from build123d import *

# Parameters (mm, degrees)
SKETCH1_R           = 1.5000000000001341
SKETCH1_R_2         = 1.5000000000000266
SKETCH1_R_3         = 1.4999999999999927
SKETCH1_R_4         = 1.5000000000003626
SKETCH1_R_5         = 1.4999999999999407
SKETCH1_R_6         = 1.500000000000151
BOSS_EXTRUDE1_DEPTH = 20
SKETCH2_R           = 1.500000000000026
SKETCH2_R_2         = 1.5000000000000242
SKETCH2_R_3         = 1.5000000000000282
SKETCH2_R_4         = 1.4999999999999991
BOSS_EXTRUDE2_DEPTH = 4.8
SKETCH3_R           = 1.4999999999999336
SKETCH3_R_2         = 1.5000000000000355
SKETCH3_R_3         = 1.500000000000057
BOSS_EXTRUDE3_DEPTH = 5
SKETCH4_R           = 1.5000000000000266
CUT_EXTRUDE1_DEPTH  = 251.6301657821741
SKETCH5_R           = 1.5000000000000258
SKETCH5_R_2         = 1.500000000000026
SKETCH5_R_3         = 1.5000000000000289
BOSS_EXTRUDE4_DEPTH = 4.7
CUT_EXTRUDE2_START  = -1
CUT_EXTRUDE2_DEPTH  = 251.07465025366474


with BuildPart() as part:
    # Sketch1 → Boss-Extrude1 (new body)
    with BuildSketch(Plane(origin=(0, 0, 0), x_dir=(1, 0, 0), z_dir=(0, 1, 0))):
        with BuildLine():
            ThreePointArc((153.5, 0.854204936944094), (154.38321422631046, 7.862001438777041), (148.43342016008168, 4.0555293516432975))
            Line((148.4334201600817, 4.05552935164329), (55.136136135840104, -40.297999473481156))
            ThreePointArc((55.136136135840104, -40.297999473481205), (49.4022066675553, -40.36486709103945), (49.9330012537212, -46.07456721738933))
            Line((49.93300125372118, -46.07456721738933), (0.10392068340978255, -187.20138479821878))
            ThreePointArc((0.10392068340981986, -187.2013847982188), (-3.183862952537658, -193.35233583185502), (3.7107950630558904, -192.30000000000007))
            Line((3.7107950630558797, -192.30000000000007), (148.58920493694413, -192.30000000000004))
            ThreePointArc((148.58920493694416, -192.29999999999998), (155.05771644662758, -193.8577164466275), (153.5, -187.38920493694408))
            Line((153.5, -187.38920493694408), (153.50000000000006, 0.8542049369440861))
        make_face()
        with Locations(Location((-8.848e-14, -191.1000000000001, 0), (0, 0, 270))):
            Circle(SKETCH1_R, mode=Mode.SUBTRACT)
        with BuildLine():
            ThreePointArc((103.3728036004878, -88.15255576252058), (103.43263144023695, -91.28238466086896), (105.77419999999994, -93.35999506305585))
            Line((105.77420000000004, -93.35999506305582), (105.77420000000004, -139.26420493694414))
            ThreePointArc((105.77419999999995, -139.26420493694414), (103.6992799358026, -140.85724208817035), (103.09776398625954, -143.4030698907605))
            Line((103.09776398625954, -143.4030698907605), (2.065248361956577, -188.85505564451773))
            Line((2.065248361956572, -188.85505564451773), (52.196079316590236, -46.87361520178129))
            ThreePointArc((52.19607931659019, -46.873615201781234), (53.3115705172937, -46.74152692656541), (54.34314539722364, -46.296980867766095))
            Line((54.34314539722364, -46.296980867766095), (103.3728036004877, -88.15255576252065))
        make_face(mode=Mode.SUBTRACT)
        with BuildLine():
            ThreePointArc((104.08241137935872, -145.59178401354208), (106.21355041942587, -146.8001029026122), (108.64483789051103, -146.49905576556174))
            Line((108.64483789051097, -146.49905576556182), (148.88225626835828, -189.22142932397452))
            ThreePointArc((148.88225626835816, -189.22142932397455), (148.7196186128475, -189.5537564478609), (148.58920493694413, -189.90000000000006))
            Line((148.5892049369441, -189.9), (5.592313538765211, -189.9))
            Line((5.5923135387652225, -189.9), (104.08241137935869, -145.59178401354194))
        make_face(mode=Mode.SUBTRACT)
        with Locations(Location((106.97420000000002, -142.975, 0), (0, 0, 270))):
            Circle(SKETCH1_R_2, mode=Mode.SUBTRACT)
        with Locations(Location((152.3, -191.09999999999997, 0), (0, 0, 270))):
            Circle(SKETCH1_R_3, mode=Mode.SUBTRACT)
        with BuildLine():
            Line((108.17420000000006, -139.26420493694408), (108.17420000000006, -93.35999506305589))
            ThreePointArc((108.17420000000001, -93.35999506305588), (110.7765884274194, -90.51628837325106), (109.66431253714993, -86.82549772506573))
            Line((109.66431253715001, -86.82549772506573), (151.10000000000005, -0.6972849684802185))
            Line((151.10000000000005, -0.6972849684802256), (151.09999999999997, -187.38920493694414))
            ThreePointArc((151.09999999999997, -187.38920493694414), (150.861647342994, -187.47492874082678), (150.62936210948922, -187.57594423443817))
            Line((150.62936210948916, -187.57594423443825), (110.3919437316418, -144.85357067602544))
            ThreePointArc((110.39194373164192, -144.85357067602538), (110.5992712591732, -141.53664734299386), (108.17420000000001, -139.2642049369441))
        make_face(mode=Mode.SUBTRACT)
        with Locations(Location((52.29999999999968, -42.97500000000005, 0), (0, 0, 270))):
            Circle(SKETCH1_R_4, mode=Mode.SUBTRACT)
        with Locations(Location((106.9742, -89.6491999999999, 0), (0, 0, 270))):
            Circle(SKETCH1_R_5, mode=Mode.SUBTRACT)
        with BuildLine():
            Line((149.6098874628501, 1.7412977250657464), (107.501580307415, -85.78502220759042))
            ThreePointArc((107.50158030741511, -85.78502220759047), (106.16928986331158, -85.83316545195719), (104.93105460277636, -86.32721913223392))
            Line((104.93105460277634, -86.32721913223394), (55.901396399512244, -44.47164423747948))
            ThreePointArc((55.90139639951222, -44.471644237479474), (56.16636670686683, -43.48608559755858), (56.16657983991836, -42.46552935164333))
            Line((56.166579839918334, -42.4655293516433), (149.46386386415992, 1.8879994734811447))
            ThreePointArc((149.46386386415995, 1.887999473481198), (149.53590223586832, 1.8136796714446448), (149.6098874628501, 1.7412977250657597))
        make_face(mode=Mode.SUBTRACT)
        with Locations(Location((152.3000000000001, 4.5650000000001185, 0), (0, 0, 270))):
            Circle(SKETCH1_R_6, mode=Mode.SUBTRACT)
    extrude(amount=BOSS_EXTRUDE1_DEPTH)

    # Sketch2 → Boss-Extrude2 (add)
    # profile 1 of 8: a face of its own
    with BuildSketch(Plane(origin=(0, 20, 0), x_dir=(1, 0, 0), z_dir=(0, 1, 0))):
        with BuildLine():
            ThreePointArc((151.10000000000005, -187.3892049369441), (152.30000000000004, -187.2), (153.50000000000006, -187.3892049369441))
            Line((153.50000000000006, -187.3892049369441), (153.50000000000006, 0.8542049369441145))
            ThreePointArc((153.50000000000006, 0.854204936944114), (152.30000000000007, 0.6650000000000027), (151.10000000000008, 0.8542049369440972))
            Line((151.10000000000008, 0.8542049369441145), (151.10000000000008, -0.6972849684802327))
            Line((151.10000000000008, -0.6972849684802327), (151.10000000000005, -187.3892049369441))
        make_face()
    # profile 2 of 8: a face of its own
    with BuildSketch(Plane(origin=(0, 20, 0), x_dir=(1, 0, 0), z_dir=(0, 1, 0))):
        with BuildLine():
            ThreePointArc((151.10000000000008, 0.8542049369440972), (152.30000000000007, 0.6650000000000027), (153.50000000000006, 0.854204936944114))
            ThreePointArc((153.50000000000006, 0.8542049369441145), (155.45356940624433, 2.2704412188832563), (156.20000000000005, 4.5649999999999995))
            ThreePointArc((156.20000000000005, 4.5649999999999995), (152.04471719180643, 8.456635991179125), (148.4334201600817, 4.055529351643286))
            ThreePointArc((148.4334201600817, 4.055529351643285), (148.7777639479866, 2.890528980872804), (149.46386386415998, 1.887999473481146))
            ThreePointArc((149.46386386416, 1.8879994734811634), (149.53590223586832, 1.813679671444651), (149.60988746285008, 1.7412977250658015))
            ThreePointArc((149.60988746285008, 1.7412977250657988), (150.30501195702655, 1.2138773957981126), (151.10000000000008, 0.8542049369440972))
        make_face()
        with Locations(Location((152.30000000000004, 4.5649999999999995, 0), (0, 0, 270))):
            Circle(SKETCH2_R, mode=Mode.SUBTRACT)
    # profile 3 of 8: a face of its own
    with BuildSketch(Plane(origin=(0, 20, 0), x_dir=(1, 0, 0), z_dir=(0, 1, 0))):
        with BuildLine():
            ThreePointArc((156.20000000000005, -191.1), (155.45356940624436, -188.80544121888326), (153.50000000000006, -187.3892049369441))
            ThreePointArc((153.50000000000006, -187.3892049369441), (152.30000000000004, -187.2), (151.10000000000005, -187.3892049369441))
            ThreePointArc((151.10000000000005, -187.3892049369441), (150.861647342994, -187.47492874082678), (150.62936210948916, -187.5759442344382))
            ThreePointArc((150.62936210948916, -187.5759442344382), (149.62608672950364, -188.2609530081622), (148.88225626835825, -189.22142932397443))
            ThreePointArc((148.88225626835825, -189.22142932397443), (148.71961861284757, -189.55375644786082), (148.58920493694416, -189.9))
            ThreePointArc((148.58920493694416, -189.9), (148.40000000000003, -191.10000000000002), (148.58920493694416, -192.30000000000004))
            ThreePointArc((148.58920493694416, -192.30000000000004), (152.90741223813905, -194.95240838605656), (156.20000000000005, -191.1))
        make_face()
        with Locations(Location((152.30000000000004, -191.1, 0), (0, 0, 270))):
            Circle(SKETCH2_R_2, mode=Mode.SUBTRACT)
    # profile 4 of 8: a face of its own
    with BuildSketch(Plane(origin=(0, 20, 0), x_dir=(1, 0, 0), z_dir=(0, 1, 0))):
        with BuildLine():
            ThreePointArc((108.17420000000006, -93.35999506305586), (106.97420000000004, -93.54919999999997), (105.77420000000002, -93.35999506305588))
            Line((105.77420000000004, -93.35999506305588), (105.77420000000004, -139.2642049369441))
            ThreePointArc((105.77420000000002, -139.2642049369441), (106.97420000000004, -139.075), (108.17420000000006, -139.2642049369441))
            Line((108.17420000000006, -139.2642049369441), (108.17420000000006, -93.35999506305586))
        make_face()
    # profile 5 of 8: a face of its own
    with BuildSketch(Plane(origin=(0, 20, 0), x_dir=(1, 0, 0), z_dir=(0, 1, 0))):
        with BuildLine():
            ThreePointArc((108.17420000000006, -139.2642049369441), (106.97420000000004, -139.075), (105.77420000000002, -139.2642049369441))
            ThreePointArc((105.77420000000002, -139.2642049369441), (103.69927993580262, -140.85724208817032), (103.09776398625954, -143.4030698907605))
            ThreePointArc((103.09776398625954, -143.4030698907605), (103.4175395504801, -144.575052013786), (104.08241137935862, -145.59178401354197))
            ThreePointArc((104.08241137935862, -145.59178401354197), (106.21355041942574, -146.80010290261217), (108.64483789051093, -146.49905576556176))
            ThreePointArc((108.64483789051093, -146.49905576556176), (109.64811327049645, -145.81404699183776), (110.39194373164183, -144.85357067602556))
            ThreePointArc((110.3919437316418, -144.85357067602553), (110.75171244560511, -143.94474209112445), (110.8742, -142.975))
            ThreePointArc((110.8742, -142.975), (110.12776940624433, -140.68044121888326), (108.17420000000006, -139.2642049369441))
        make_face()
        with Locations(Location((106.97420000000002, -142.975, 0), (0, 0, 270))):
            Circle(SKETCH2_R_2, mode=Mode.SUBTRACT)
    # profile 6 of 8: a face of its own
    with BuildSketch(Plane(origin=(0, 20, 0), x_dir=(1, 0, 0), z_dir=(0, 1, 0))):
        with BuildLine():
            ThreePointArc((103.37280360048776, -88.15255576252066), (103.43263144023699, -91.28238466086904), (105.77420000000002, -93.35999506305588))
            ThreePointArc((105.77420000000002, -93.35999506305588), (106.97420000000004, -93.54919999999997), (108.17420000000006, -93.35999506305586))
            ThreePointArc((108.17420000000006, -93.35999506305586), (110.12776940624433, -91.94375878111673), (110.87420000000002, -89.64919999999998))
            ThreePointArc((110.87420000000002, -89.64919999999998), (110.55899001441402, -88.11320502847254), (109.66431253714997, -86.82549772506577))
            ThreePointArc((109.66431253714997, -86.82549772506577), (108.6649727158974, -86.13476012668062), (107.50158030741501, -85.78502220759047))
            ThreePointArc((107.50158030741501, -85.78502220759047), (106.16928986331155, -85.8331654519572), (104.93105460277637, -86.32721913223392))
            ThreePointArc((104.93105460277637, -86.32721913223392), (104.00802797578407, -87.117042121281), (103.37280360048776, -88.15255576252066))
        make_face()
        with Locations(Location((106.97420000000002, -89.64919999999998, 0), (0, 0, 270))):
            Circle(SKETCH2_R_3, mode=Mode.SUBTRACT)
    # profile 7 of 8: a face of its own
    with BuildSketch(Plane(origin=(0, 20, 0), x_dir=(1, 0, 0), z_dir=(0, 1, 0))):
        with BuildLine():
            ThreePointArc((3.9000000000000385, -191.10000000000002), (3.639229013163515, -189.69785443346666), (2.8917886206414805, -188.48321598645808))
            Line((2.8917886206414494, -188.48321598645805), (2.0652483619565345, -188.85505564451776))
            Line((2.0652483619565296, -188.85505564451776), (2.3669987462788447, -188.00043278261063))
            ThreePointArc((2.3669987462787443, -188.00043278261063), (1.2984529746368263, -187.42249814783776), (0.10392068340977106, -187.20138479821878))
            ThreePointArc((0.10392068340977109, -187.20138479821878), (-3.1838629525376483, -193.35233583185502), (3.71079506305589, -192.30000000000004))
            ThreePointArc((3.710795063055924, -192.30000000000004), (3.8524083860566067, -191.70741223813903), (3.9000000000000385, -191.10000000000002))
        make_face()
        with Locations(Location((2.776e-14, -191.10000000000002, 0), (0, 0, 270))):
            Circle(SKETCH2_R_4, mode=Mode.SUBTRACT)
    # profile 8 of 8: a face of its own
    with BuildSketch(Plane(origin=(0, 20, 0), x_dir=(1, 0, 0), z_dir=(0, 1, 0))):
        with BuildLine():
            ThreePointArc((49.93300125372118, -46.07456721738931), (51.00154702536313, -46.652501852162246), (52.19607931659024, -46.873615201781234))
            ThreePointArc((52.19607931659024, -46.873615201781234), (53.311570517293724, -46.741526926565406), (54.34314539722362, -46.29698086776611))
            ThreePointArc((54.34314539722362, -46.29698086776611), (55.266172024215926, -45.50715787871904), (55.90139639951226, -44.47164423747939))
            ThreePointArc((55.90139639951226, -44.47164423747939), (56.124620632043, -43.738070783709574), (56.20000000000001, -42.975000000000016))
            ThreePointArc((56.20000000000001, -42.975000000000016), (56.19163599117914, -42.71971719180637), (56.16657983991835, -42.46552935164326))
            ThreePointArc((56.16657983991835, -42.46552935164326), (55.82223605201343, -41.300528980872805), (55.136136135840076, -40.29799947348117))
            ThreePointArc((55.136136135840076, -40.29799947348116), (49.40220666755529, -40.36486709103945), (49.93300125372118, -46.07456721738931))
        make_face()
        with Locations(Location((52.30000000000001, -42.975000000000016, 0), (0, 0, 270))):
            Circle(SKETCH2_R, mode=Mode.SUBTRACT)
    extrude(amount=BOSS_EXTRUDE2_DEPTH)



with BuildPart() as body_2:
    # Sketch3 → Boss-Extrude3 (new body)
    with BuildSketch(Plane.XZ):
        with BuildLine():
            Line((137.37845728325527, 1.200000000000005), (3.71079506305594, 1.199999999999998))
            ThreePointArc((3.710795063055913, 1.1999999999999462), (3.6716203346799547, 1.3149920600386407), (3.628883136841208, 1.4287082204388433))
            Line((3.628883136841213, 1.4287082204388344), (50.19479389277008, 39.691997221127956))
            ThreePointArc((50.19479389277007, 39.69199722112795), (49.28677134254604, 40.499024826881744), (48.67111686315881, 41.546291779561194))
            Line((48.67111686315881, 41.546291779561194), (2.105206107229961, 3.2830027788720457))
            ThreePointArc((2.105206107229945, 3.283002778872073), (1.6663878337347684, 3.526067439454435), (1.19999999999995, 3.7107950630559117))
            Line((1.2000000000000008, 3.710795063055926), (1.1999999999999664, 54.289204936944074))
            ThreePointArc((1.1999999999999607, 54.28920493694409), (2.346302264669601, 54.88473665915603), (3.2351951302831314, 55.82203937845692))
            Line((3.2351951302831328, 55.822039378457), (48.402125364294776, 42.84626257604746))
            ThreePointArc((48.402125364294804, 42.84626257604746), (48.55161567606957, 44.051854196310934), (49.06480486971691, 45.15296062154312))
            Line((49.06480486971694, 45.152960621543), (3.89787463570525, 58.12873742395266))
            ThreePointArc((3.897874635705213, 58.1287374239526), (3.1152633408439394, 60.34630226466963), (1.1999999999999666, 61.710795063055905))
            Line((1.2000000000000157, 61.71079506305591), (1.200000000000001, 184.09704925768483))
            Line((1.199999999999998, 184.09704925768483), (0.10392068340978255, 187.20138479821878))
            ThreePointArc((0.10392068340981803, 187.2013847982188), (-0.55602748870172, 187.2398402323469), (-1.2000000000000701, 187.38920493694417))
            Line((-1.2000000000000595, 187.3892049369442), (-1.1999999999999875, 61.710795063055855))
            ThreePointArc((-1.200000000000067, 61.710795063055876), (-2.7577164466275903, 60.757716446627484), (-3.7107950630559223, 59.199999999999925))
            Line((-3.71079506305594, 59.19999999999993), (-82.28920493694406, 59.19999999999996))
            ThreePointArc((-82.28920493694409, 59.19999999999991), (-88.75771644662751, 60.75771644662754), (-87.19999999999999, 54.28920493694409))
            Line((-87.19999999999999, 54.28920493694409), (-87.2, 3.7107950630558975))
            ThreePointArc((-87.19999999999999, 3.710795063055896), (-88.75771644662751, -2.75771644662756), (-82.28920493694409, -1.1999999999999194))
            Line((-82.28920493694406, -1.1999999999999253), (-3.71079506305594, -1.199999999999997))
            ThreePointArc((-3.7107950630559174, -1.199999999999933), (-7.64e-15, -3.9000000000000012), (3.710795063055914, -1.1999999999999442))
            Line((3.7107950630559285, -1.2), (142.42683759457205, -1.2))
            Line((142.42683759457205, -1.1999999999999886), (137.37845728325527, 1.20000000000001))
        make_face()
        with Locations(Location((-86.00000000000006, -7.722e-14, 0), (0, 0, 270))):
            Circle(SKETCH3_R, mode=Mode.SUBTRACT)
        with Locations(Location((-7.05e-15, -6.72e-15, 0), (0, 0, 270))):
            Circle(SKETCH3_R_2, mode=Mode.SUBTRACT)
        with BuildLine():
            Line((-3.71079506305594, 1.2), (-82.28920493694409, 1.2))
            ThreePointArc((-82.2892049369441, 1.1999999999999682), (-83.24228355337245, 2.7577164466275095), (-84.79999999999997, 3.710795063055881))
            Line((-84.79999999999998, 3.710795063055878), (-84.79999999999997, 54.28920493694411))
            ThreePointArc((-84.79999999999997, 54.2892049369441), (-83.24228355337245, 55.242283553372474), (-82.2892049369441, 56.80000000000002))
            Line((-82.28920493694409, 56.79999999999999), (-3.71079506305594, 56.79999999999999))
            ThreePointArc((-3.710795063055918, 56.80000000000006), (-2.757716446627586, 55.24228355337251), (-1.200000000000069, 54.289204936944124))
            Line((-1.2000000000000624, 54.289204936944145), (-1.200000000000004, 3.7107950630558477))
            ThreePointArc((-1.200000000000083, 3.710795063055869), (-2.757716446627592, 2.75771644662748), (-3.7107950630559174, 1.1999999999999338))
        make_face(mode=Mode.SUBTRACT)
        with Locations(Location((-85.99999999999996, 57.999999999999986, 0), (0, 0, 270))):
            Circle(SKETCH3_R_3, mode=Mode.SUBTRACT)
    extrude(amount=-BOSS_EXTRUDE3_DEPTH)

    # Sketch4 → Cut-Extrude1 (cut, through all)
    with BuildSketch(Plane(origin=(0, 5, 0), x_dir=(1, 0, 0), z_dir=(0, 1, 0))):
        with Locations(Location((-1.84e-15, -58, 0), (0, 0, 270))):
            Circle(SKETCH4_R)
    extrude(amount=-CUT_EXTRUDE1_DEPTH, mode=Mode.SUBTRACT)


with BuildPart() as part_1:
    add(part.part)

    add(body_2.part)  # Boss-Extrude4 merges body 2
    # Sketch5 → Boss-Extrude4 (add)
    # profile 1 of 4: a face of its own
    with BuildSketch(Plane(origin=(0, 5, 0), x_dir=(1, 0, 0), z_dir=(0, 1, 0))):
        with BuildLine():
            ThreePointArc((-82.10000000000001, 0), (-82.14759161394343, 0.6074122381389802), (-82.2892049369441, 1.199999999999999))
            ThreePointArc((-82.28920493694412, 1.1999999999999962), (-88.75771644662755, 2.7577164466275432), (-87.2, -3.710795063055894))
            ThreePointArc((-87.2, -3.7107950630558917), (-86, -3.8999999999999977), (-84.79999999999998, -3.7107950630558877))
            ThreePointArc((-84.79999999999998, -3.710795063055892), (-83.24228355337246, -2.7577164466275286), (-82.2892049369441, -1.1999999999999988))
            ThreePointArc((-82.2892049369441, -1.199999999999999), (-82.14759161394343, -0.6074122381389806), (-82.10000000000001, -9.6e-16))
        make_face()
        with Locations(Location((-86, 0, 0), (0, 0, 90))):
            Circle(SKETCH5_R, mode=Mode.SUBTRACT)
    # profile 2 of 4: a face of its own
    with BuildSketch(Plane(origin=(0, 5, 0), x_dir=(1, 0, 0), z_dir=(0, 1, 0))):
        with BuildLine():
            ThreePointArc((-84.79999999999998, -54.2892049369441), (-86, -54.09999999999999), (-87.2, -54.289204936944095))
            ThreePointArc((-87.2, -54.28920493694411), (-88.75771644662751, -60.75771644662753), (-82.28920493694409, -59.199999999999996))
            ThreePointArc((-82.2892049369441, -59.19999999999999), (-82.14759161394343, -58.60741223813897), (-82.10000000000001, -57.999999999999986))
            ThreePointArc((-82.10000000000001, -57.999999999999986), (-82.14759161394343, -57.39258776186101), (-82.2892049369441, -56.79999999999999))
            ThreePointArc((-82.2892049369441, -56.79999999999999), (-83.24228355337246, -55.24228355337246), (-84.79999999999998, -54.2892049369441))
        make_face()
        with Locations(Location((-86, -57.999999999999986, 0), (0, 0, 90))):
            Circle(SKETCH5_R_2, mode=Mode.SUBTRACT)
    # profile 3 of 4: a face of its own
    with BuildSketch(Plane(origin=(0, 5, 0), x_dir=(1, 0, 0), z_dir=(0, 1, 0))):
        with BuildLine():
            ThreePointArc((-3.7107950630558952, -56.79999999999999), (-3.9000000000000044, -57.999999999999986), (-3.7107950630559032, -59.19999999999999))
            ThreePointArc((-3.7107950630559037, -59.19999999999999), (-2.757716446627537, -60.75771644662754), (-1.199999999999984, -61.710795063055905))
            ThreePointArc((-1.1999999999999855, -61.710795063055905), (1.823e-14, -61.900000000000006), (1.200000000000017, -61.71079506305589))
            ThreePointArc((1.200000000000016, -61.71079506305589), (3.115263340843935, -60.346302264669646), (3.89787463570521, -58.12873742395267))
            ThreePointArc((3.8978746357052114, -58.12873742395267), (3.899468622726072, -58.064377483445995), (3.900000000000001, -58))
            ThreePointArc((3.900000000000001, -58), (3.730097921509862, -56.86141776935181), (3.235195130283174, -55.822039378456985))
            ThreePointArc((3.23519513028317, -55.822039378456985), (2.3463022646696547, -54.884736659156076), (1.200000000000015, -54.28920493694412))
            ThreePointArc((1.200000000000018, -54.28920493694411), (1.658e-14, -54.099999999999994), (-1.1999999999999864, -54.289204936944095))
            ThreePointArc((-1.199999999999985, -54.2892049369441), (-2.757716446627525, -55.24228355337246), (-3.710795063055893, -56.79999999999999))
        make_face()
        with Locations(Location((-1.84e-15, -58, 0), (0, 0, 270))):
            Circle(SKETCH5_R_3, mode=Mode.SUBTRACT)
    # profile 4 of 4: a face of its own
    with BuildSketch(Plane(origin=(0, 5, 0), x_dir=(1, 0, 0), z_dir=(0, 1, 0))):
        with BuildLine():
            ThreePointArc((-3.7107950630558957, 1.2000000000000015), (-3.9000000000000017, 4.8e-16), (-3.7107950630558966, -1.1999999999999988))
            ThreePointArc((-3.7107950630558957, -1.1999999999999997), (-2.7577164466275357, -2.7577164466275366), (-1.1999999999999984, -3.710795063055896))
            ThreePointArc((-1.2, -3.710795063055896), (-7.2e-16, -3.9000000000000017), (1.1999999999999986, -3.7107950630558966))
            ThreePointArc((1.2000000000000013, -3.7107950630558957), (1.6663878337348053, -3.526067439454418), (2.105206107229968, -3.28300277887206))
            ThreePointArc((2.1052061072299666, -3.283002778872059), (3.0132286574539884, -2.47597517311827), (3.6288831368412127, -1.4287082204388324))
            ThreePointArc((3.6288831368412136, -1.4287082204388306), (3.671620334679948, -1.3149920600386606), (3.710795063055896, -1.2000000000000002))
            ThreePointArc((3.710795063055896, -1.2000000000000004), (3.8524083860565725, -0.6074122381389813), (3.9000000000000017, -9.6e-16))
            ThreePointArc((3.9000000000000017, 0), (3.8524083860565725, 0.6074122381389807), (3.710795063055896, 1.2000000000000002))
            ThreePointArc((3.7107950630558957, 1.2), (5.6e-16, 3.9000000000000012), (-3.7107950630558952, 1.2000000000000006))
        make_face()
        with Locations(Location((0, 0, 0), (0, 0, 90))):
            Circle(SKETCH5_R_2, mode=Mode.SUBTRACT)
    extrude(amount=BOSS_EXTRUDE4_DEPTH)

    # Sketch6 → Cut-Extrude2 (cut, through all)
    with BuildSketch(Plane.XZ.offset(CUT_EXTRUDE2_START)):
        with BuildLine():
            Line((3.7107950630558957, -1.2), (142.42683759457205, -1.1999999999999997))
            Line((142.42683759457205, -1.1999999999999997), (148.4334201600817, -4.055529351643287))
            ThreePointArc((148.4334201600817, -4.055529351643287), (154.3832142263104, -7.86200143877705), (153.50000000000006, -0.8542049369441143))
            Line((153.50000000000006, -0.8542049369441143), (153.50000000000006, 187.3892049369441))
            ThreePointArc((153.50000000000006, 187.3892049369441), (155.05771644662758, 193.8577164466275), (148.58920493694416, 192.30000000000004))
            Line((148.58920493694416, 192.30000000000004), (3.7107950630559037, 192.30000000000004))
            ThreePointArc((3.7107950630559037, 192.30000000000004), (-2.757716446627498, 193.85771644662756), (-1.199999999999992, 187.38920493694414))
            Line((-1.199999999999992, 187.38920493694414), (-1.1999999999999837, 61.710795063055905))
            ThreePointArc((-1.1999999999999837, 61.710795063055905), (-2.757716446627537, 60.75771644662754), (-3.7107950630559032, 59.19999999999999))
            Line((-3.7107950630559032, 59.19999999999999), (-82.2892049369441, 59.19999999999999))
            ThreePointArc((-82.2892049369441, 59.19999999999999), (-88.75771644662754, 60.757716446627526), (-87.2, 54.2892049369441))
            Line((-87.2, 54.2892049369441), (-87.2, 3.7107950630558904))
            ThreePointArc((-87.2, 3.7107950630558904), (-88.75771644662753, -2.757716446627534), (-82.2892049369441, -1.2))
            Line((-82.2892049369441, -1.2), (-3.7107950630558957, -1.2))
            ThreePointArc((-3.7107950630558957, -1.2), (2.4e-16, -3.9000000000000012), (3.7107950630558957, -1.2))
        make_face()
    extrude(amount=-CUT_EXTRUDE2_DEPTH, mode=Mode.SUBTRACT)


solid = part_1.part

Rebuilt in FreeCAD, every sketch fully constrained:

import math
import FreeCAD as App
import Part
import Sketcher

V = App.Vector
Q = App.Units.Quantity

doc = App.newDocument("Part")
params = doc.addObject("Spreadsheet::Sheet", "Params")
for row, (alias, value) in enumerate([
    ("sketch1_diameter", "3 mm"),
    ("sketch1_radius", "3.9 mm"),
    ("sketch1_width", "1.2 mm"),
    ("pad1_length", "20 mm"),
    ("sketch2_diameter", "3 mm"),
    ("sketch2_diameter2", "7.8 mm"),
    ("pad2_length", "4.8 mm"),
    ("sketch3_diameter", "3 mm"),
    ("sketch3_radius", "3.9 mm"),
    ("pad3_length", "5 mm"),
    ("sketch4_diameter", "3 mm"),
    ("sketch5_diameter", "3 mm"),
    ("sketch5_diameter2", "7.8 mm"),
    ("pad4_length", "4.7 mm"),
    ("sketch6_radius", "3.9 mm"),
], start=1):
    params.set(f"A{row}", alias)
    params.set(f"B{row}", "=" + value)
    params.setAlias(f"B{row}", alias)

body = doc.addObject("PartDesign::Body", "Body")

# Sketch on XZ plane
sketch1 = body.newObject("Sketcher::SketchObject", "Sketch")
sketch1.AttachmentSupport = (doc.getObject("XZ_Plane"), [""])
sketch1.MapMode = "FlatFace"
sketch1.addGeometry([
    Part.ArcOfCircle(Part.Circle(V(152.3, -4.57, 0), V(0, 0, 1), 3.9), math.radians(172), math.radians(432)),  # 0
    Part.LineSegment(V(148.43, -4.06, 0), V(55.14, 40.3, 0)),  # 1
    Part.ArcOfCircle(Part.Circle(V(52.3, 42.98, 0), V(0, 0, 1), 3.9), math.radians(127), math.radians(317)),  # 2
    Part.LineSegment(V(49.93, 46.07, 0), V(0.1, 187.2, 0)),  # 3
    Part.ArcOfCircle(Part.Circle(V(0, 191.1, 0), V(0, 0, 1), 3.9), math.radians(18), math.radians(272)),  # 4
    Part.LineSegment(V(3.71, 192.3, 0), V(148.59, 192.3, 0)),  # 5
    Part.ArcOfCircle(Part.Circle(V(152.3, 191.1, 0), V(0, 0, 1), 3.9), math.radians(-72), math.radians(162)),  # 6
    Part.LineSegment(V(153.5, 187.39, 0), V(153.5, -0.85, 0)),  # 7
    Part.Circle(V(0, 191.1, 0), V(0, 0, 1), 1.5),  # 8
    Part.LineSegment(V(54.34, 46.3, 0), V(103.37, 88.15, 0)),  # 9
    Part.ArcOfCircle(Part.Circle(V(106.97, 89.65, 0), V(0, 0, 1), 3.9), math.radians(108), math.radians(203)),  # 10
    Part.LineSegment(V(105.77, 93.36, 0), V(105.77, 139.26, 0)),  # 11
    Part.ArcOfCircle(Part.Circle(V(106.97, 142.97, 0), V(0, 0, 1), 3.9), math.radians(174), math.radians(252)),  # 12
    Part.LineSegment(V(103.1, 143.4, 0), V(2.07, 188.86, 0)),  # 13
    Part.LineSegment(V(2.07, 188.86, 0), V(52.2, 46.87, 0)),  # 14
    Part.ArcOfCircle(Part.Circle(V(52.3, 42.98, 0), V(0, 0, 1), 3.9), math.radians(58), math.radians(92)),  # 15
    Part.LineSegment(V(5.59, 189.9, 0), V(104.08, 145.59, 0)),  # 16
    Part.ArcOfCircle(Part.Circle(V(106.97, 142.97, 0), V(0, 0, 1), 3.9), math.radians(65), math.radians(138)),  # 17
    Part.LineSegment(V(108.64, 146.5, 0), V(148.88, 189.22, 0)),  # 18
    Part.ArcOfCircle(Part.Circle(V(152.3, 191.1, 0), V(0, 0, 1), 3.9), math.radians(-162.08), math.radians(-151.2)),  # 19
    Part.LineSegment(V(148.59, 189.9, 0), V(5.59, 189.9, 0)),  # 20
    Part.Circle(V(106.97, 142.97, 0), V(0, 0, 1), 1.5),  # 21
    Part.Circle(V(152.3, 191.1, 0), V(0, 0, 1), 1.5),  # 22
    Part.ArcOfCircle(Part.Circle(V(106.97, 142.97, 0), V(0, 0, 1), 3.9), math.radians(-72), math.radians(29)),  # 23
    Part.LineSegment(V(108.17, 139.26, 0), V(108.17, 93.36, 0)),  # 24
    Part.ArcOfCircle(Part.Circle(V(106.97, 89.65, 0), V(0, 0, 1), 3.9), math.radians(-46), math.radians(72)),  # 25
    Part.LineSegment(V(109.66, 86.83, 0), V(151.1, 0.7, 0)),  # 26
    Part.LineSegment(V(151.1, 0.7, 0), V(151.1, 187.39, 0)),  # 27
    Part.ArcOfCircle(Part.Circle(V(152.3, 191.1, 0), V(0, 0, 1), 3.9), math.radians(-115.36), math.radians(-107.92)),  # 28
    Part.LineSegment(V(150.63, 187.58, 0), V(110.39, 144.85, 0)),  # 29
    Part.Circle(V(52.3, 42.98, 0), V(0, 0, 1), 1.5),  # 30
    Part.Circle(V(106.97, 89.65, 0), V(0, 0, 1), 1.5),  # 31
    Part.ArcOfCircle(Part.Circle(V(152.3, -4.57, 0), V(0, 0, 1), 3.9), math.radians(133.61), math.radians(136.65)),  # 32
    Part.LineSegment(V(149.61, -1.74, 0), V(107.5, 85.79, 0)),  # 33
    Part.ArcOfCircle(Part.Circle(V(106.97, 89.65, 0), V(0, 0, 1), 3.9), math.radians(-122), math.radians(-82)),  # 34
    Part.LineSegment(V(104.93, 86.33, 0), V(55.9, 44.47, 0)),  # 35
    Part.ArcOfCircle(Part.Circle(V(52.3, 42.98, 0), V(0, 0, 1), 3.9), math.radians(-8), math.radians(23)),  # 36
    Part.LineSegment(V(56.17, 42.47, 0), V(149.46, -1.89, 0)),  # 37
    Part.Circle(V(152.3, -4.57, 0), V(0, 0, 1), 1.5),  # 38
], False)
sketch1.addConstraint([
    Sketcher.Constraint("Coincident", 0, 1, 1, 1),
    Sketcher.Constraint("Coincident", 1, 2, 2, 2),
    Sketcher.Constraint("Coincident", 2, 1, 3, 1),
    Sketcher.Constraint("Coincident", 3, 2, 4, 2),
    Sketcher.Constraint("Coincident", 4, 1, 5, 1),
    Sketcher.Constraint("Coincident", 5, 2, 6, 2),
    Sketcher.Constraint("Coincident", 6, 1, 7, 1),
    Sketcher.Constraint("Coincident", 7, 2, 0, 2),
    Sketcher.Constraint("Coincident", 9, 2, 10, 2),
    Sketcher.Constraint("Coincident", 10, 1, 11, 1),
    Sketcher.Constraint("Coincident", 11, 2, 12, 2),
    Sketcher.Constraint("Coincident", 12, 1, 13, 1),
    Sketcher.Constraint("Coincident", 13, 2, 14, 1),
    Sketcher.Constraint("Coincident", 14, 2, 15, 2),
    Sketcher.Constraint("Coincident", 15, 1, 9, 1),
    Sketcher.Constraint("Coincident", 16, 2, 17, 2),
    Sketcher.Constraint("Coincident", 17, 1, 18, 1),
    Sketcher.Constraint("Coincident", 18, 2, 19, 2),
    Sketcher.Constraint("Coincident", 19, 1, 20, 1),
    Sketcher.Constraint("Coincident", 20, 2, 16, 1),
    Sketcher.Constraint("Coincident", 23, 1, 24, 1),
    Sketcher.Constraint("Coincident", 24, 2, 25, 2),
    Sketcher.Constraint("Coincident", 25, 1, 26, 1),
    Sketcher.Constraint("Coincident", 26, 2, 27, 1),
    Sketcher.Constraint("Coincident", 27, 2, 28, 2),
    Sketcher.Constraint("Coincident", 28, 1, 29, 1),
    Sketcher.Constraint("Coincident", 29, 2, 23, 2),
    Sketcher.Constraint("Coincident", 32, 1, 33, 1),
    Sketcher.Constraint("Coincident", 33, 2, 34, 2),
    Sketcher.Constraint("Coincident", 34, 1, 35, 1),
    Sketcher.Constraint("Coincident", 35, 2, 36, 2),
    Sketcher.Constraint("Coincident", 36, 1, 37, 1),
    Sketcher.Constraint("Coincident", 37, 2, 32, 2),
    Sketcher.Constraint("Horizontal", 5),
    Sketcher.Constraint("Vertical", 7),
    Sketcher.Constraint("Vertical", 11),
    Sketcher.Constraint("Horizontal", 20),
    Sketcher.Constraint("Vertical", 24),
    Sketcher.Constraint("Vertical", 27),
    Sketcher.Constraint("Coincident", 8, 3, 4, 3),
    Sketcher.Constraint("Coincident", 15, 3, 2, 3),
    Sketcher.Constraint("Coincident", 17, 3, 12, 3),
    Sketcher.Constraint("Coincident", 19, 3, 6, 3),
    Sketcher.Constraint("Coincident", 21, 3, 12, 3),
    Sketcher.Constraint("Coincident", 22, 3, 6, 3),
    Sketcher.Constraint("Coincident", 23, 3, 12, 3),
    Sketcher.Constraint("Coincident", 25, 3, 10, 3),
    Sketcher.Constraint("Coincident", 28, 3, 6, 3),
    Sketcher.Constraint("Coincident", 30, 3, 2, 3),
    Sketcher.Constraint("Coincident", 31, 3, 10, 3),
    Sketcher.Constraint("Coincident", 32, 3, 0, 3),
    Sketcher.Constraint("Coincident", 34, 3, 10, 3),
    Sketcher.Constraint("Coincident", 36, 3, 2, 3),
    Sketcher.Constraint("Coincident", 38, 3, 0, 3),
    Sketcher.Constraint("Equal", 0, 2),
    Sketcher.Constraint("Equal", 2, 4),
    Sketcher.Constraint("Equal", 4, 6),
    Sketcher.Constraint("Equal", 6, 10),
    Sketcher.Constraint("Equal", 10, 12),
    Sketcher.Constraint("Equal", 12, 15),
    Sketcher.Constraint("Equal", 15, 17),
    Sketcher.Constraint("Equal", 17, 19),
    Sketcher.Constraint("Equal", 8, 21),
    Sketcher.Constraint("Equal", 21, 22),
    Sketcher.Constraint("Equal", 19, 23),
    Sketcher.Constraint("Equal", 23, 25),
    Sketcher.Constraint("Equal", 25, 28),
    Sketcher.Constraint("Equal", 22, 30),
    Sketcher.Constraint("Equal", 30, 31),
    Sketcher.Constraint("Equal", 28, 32),
    Sketcher.Constraint("Equal", 32, 34),
    Sketcher.Constraint("Equal", 34, 36),
    Sketcher.Constraint("Equal", 31, 38),
    Sketcher.Constraint("PointOnObject", 4, 3, -2),
    Sketcher.Constraint("Parallel", 3, 14),
    Sketcher.Constraint("Parallel", 13, 16),
    Sketcher.Constraint("Parallel", 18, 29),
    Sketcher.Constraint("Parallel", 26, 33),
    Sketcher.Constraint("Parallel", 9, 35),
    Sketcher.Constraint("Parallel", 1, 37),
    Sketcher.Constraint("Horizontal", 4, 3, 6, 3),
    Sketcher.Constraint("Horizontal", 11, 2, 23, 1),
    Sketcher.Constraint("Horizontal", 10, 1, 24, 2),
    Sketcher.Constraint("Horizontal", 6, 1, 27, 2),
    Sketcher.Constraint("Vertical", 0, 3, 6, 3),
    Sketcher.Constraint("Vertical", 5, 2, 19, 1),
    Sketcher.Constraint("Equal", 18, 29),
    Sketcher.Constraint("Equal", 9, 35),
    Sketcher.Constraint("Equal", 1, 37),
    Sketcher.Constraint("Diameter", 8, 3.0),
    Sketcher.Constraint("Radius", 0, 3.9),
    Sketcher.Constraint("DistanceX", 2, 3, 0, 3, 100.0),
    Sketcher.Constraint("DistanceY", 2, 3, 12, 3, 100.0),
    Sketcher.Constraint("DistanceX", -1, 1, 0, 3, 152.3),
    Sketcher.Constraint("DistanceY", -1, 1, 4, 3, 191.1),
    Sketcher.Constraint("DistanceY", -1, 1, 4, 1, 192.3),
    Sketcher.Constraint("DistanceX", -1, 1, 6, 1, 153.5),
    Sketcher.Constraint("DistanceX", 10, 1, 10, 3, 1.2),
    Sketcher.Constraint("DistanceY", 0, 3, 2, 3, 47.54),
    Sketcher.Constraint("DistanceY", 0, 3, -1, 1, 4.565),
    Sketcher.Constraint("DistanceY", -1, 1, 1, 2, 40.297999),
    Sketcher.Constraint("DistanceX", -1, 1, 2, 1, 49.933001),
    Sketcher.Constraint("DistanceX", 20, 2, 20, 1, 142.996891),
    Sketcher.Constraint("DistanceY", 11, 1, 11, 2, 45.90421),
    Sketcher.Constraint("DistanceY", 27, 1, 27, 2, 186.69192),
    Sketcher.Constraint("DistanceX", -1, 1, 10, 3, 106.9742),
    Sketcher.Constraint("DistanceY", 37, 2, 32, 1, 0.146702),
    Sketcher.Constraint("Distance", 18, 58.687742),
    Sketcher.Constraint("DistanceX", -1, 1, 0, 1, 148.43342),
    Sketcher.Constraint("DistanceX", -1, 1, 3, 2, 0.103921),
    Sketcher.Constraint("DistanceY", -1, 1, 12, 1, 143.40307),
    Sketcher.Constraint("DistanceX", -1, 1, 13, 2, 2.065248),
    Sketcher.Constraint("DistanceX", -1, 1, 14, 2, 52.196079),
    Sketcher.Constraint("DistanceY", -1, 1, 15, 1, 46.296981),
    Sketcher.Constraint("DistanceY", -1, 1, 18, 2, 189.221429),
    Sketcher.Constraint("DistanceX", -1, 1, 33, 2, 107.50158),
    Sketcher.Constraint("DistanceY", 9, 2, 10, 1, 5.207439),
])
sketch1.setExpression("Constraints[89]", "Params.sketch1_diameter")
sketch1.setExpression("Constraints[90]", "Params.sketch1_radius")
sketch1.setExpression("Constraints[97]", "Params.sketch1_width")
pad1 = body.newObject("PartDesign::Pad", "Pad")
pad1.Profile = sketch1
pad1.setExpression("Length", "Params.pad1_length")
pad1.Reversed = True

# Sketch on XZ plane
sketch2 = body.newObject("Sketcher::SketchObject", "Sketch001")
sketch2.AttachmentSupport = (doc.getObject("XZ_Plane"), [""])
sketch2.MapMode = "FlatFace"
sketch2.AttachmentOffset = App.Placement(V(0, 0, -20), App.Rotation())
sketch2.addGeometry([
    Part.LineSegment(V(153.5, 187.4, 0), V(153.5, -0.9, 0)),  # 0
    Part.ArcOfCircle(Part.Circle(V(152.3, -4.6, 0), V(0, 0, 1), 3.9), math.radians(108), math.radians(432)),  # 1
    Part.LineSegment(V(151.1, -0.9, 0), V(151.1, 187.4, 0)),  # 2
    Part.ArcOfCircle(Part.Circle(V(152.3, 191.1, 0), V(0, 0, 1), 3.9), math.radians(-72), math.radians(252)),  # 3
    Part.Circle(V(152.3, 191.1, 0), V(0, 0, 1), 1.5),  # 4
    Part.Circle(V(152.3, -4.6, 0), V(0, 0, 1), 1.5),  # 5
    Part.LineSegment(V(105.8, 93.4, 0), V(105.8, 139.3, 0)),  # 6
    Part.ArcOfCircle(Part.Circle(V(107, 143, 0), V(0, 0, 1), 3.9), math.radians(-72), math.radians(252)),  # 7
    Part.LineSegment(V(108.2, 139.3, 0), V(108.2, 93.4, 0)),  # 8
    Part.ArcOfCircle(Part.Circle(V(107, 89.6, 0), V(0, 0, 1), 3.9), math.radians(108), math.radians(432)),  # 9
    Part.Circle(V(107, 89.6, 0), V(0, 0, 1), 1.5),  # 10
    Part.Circle(V(107, 143, 0), V(0, 0, 1), 1.5),  # 11
    Part.LineSegment(V(2.9, 188.5, 0), V(2.1, 188.9, 0)),  # 12
    Part.LineSegment(V(2.1, 188.9, 0), V(2.4, 188, 0)),  # 13
    Part.ArcOfCircle(Part.Circle(V(0, 191.1, 0), V(0, 0, 1), 3.9), math.radians(-42), math.radians(307)),  # 14
    Part.Circle(V(0, 191.1, 0), V(0, 0, 1), 1.5),  # 15
    Part.Circle(V(52.3, 43, 0), V(0, 0, 1), 3.9),  # 16
    Part.Circle(V(52.3, 43, 0), V(0, 0, 1), 1.5),  # 17
], False)
sketch2.addConstraint([
    Sketcher.Constraint("Coincident", 0, 2, 1, 2),
    Sketcher.Constraint("Coincident", 1, 1, 2, 1),
    Sketcher.Constraint("Coincident", 2, 2, 3, 2),
    Sketcher.Constraint("Coincident", 3, 1, 0, 1),
    Sketcher.Constraint("Coincident", 6, 2, 7, 2),
    Sketcher.Constraint("Coincident", 7, 1, 8, 1),
    Sketcher.Constraint("Coincident", 8, 2, 9, 2),
    Sketcher.Constraint("Coincident", 9, 1, 6, 1),
    Sketcher.Constraint("Coincident", 12, 2, 13, 1),
    Sketcher.Constraint("Coincident", 13, 2, 14, 2),
    Sketcher.Constraint("Coincident", 14, 1, 12, 1),
    Sketcher.Constraint("Vertical", 0),
    Sketcher.Constraint("Vertical", 2),
    Sketcher.Constraint("Vertical", 6),
    Sketcher.Constraint("Vertical", 8),
    Sketcher.Constraint("Coincident", 4, 3, 3, 3),
    Sketcher.Constraint("Coincident", 5, 3, 1, 3),
    Sketcher.Constraint("Coincident", 10, 3, 9, 3),
    Sketcher.Constraint("Coincident", 11, 3, 7, 3),
    Sketcher.Constraint("Coincident", 15, 3, 14, 3),
    Sketcher.Constraint("Coincident", 17, 3, 16, 3),
    Sketcher.Constraint("Equal", 1, 3),
    Sketcher.Constraint("Equal", 4, 5),
    Sketcher.Constraint("Equal", 3, 7),
    Sketcher.Constraint("Equal", 7, 9),
    Sketcher.Constraint("Equal", 5, 10),
    Sketcher.Constraint("Equal", 10, 11),
    Sketcher.Constraint("Equal", 9, 14),
    Sketcher.Constraint("Equal", 11, 15),
    Sketcher.Constraint("Equal", 14, 16),
    Sketcher.Constraint("Equal", 15, 17),
    Sketcher.Constraint("PointOnObject", 14, 3, -2),
    Sketcher.Constraint("Horizontal", 4, 3, 14, 3),
    Sketcher.Constraint("Horizontal", 0, 2, 1, 1),
    Sketcher.Constraint("Horizontal", 2, 2, 3, 1),
    Sketcher.Constraint("Horizontal", 6, 2, 7, 1),
    Sketcher.Constraint("Horizontal", 8, 2, 9, 1),
    Sketcher.Constraint("Equal", 12, 13),
    Sketcher.Constraint("Diameter", 4, 3.0),
    Sketcher.Constraint("Diameter", 16, 7.8),
    Sketcher.Constraint("DistanceX", 16, 3, 1, 3, 100.0),
    Sketcher.Constraint("DistanceY", 16, 3, 7, 3, 100.0),
    Sketcher.Constraint("DistanceX", -1, 1, 1, 3, 152.3),
    Sketcher.Constraint("DistanceY", -1, 1, 3, 3, 191.1),
    Sketcher.Constraint("DistanceX", -1, 1, 0, 2, 153.5),
    Sketcher.Constraint("DistanceX", 6, 2, 7, 3, 1.2),
    Sketcher.Constraint("DistanceY", 1, 3, 7, 3, 147.54),
    Sketcher.Constraint("DistanceY", 1, 3, -1, 1, 4.565),
    Sketcher.Constraint("DistanceX", -1, 1, 13, 2, 2.366999),
    Sketcher.Constraint("DistanceY", 6, 1, 6, 2, 45.90421),
    Sketcher.Constraint("DistanceX", -1, 1, 7, 3, 106.9742),
    Sketcher.Constraint("Distance", 12, 0.90633),
    Sketcher.Constraint("DistanceX", -1, 1, 12, 2, 2.065248),
])
sketch2.setExpression("Constraints[38]", "Params.sketch2_diameter")
sketch2.setExpression("Constraints[39]", "Params.sketch2_diameter2")
pad2 = body.newObject("PartDesign::Pad", "Pad001")
pad2.Profile = sketch2
pad2.setExpression("Length", "Params.pad2_length")
pad2.Reversed = True
body2 = doc.addObject("PartDesign::Body", "Body001")

# Sketch on XZ plane
sketch3 = body2.newObject("Sketcher::SketchObject", "Sketch002")
sketch3.AttachmentSupport = (doc.getObject("XZ_Plane001"), [""])
sketch3.MapMode = "FlatFace"
sketch3.addGeometry([
    Part.LineSegment(V(137.38, 1.2, 0), V(3.71, 1.2, 0)),  # 0
    Part.ArcOfCircle(Part.Circle(V(0, 0, 0), V(0, 0, 1), 3.9), math.radians(17.92), math.radians(21.49)),  # 1
    Part.LineSegment(V(3.63, 1.43, 0), V(50.19, 39.69, 0)),  # 2
    Part.ArcOfCircle(Part.Circle(V(52.3, 42.98, 0), V(0, 0, 1), 3.9), math.radians(-159), math.radians(-123)),  # 3
    Part.LineSegment(V(48.67, 41.55, 0), V(2.11, 3.28, 0)),  # 4
    Part.ArcOfCircle(Part.Circle(V(0, 0, 0), V(0, 0, 1), 3.9), math.radians(57.33), math.radians(72.08)),  # 5
    Part.LineSegment(V(1.2, 3.71, 0), V(1.2, 54.29, 0)),  # 6
    Part.ArcOfCircle(Part.Circle(V(0, 58, 0), V(0, 0, 1), 3.9), math.radians(-72), math.radians(-34)),  # 7
    Part.LineSegment(V(3.24, 55.82, 0), V(48.4, 42.85, 0)),  # 8
    Part.ArcOfCircle(Part.Circle(V(52.3, 42.98, 0), V(0, 0, 1), 3.9), math.radians(146), math.radians(182)),  # 9
    Part.LineSegment(V(49.06, 45.15, 0), V(3.9, 58.13, 0)),  # 10
    Part.ArcOfCircle(Part.Circle(V(0, 58, 0), V(0, 0, 1), 3.9), math.radians(2), math.radians(72)),  # 11
    Part.LineSegment(V(1.2, 61.71, 0), V(1.2, 184.1, 0)),  # 12
    Part.LineSegment(V(1.2, 184.1, 0), V(0.1, 187.2, 0)),  # 13
    Part.ArcOfCircle(Part.Circle(V(0, 191.1, 0), V(0, 0, 1), 3.9), math.radians(-107.92), math.radians(-88.47)),  # 14
    Part.LineSegment(V(-1.2, 187.39, 0), V(-1.2, 61.71, 0)),  # 15
    Part.ArcOfCircle(Part.Circle(V(0, 58, 0), V(0, 0, 1), 3.9), math.radians(108), math.radians(162)),  # 16
    Part.LineSegment(V(-3.71, 59.2, 0), V(-82.29, 59.2, 0)),  # 17
    Part.ArcOfCircle(Part.Circle(V(-86, 58, 0), V(0, 0, 1), 3.9), math.radians(18), math.radians(252)),  # 18
    Part.LineSegment(V(-87.2, 54.29, 0), V(-87.2, 3.71, 0)),  # 19
    Part.ArcOfCircle(Part.Circle(V(-86, 0, 0), V(0, 0, 1), 3.9), math.radians(108), math.radians(342)),  # 20
    Part.LineSegment(V(-82.29, -1.2, 0), V(-3.71, -1.2, 0)),  # 21
    Part.ArcOfCircle(Part.Circle(V(0, 0, 0), V(0, 0, 1), 3.9), math.radians(-162), math.radians(-18)),  # 22
    Part.LineSegment(V(3.71, -1.2, 0), V(142.43, -1.2, 0)),  # 23
    Part.LineSegment(V(142.43, -1.2, 0), V(137.38, 1.2, 0)),  # 24
    Part.Circle(V(-86, 0, 0), V(0, 0, 1), 1.5),  # 25
    Part.Circle(V(0, 0, 0), V(0, 0, 1), 1.5),  # 26
    Part.ArcOfCircle(Part.Circle(V(0, 0, 0), V(0, 0, 1), 3.9), math.radians(108), math.radians(162)),  # 27
    Part.LineSegment(V(-3.71, 1.2, 0), V(-82.29, 1.2, 0)),  # 28
    Part.ArcOfCircle(Part.Circle(V(-86, 0, 0), V(0, 0, 1), 3.9), math.radians(18), math.radians(72)),  # 29
    Part.LineSegment(V(-84.8, 3.71, 0), V(-84.8, 54.29, 0)),  # 30
    Part.ArcOfCircle(Part.Circle(V(-86, 58, 0), V(0, 0, 1), 3.9), math.radians(-72), math.radians(-18)),  # 31
    Part.LineSegment(V(-82.29, 56.8, 0), V(-3.71, 56.8, 0)),  # 32
    Part.ArcOfCircle(Part.Circle(V(0, 58, 0), V(0, 0, 1), 3.9), math.radians(-162), math.radians(-108)),  # 33
    Part.LineSegment(V(-1.2, 54.29, 0), V(-1.2, 3.71, 0)),  # 34
    Part.Circle(V(-86, 58, 0), V(0, 0, 1), 1.5),  # 35
], False)
sketch3.addConstraint([
    Sketcher.Constraint("Coincident", 0, 2, 1, 1),
    Sketcher.Constraint("Coincident", 1, 2, 2, 1),
    Sketcher.Constraint("Coincident", 2, 2, 3, 2),
    Sketcher.Constraint("Coincident", 3, 1, 4, 1),
    Sketcher.Constraint("Coincident", 4, 2, 5, 1),
    Sketcher.Constraint("Coincident", 5, 2, 6, 1),
    Sketcher.Constraint("Coincident", 6, 2, 7, 1),
    Sketcher.Constraint("Coincident", 7, 2, 8, 1),
    Sketcher.Constraint("Coincident", 8, 2, 9, 2),
    Sketcher.Constraint("Coincident", 9, 1, 10, 1),
    Sketcher.Constraint("Coincident", 10, 2, 11, 1),
    Sketcher.Constraint("Coincident", 11, 2, 12, 1),
    Sketcher.Constraint("Coincident", 12, 2, 13, 1),
    Sketcher.Constraint("Coincident", 13, 2, 14, 2),
    Sketcher.Constraint("Coincident", 14, 1, 15, 1),
    Sketcher.Constraint("Coincident", 15, 2, 16, 1),
    Sketcher.Constraint("Coincident", 16, 2, 17, 1),
    Sketcher.Constraint("Coincident", 17, 2, 18, 1),
    Sketcher.Constraint("Coincident", 18, 2, 19, 1),
    Sketcher.Constraint("Coincident", 19, 2, 20, 1),
    Sketcher.Constraint("Coincident", 20, 2, 21, 1),
    Sketcher.Constraint("Coincident", 21, 2, 22, 1),
    Sketcher.Constraint("Coincident", 22, 2, 23, 1),
    Sketcher.Constraint("Coincident", 23, 2, 24, 1),
    Sketcher.Constraint("Coincident", 24, 2, 0, 1),
    Sketcher.Constraint("Coincident", 27, 2, 28, 1),
    Sketcher.Constraint("Coincident", 28, 2, 29, 1),
    Sketcher.Constraint("Coincident", 29, 2, 30, 1),
    Sketcher.Constraint("Coincident", 30, 2, 31, 1),
    Sketcher.Constraint("Coincident", 31, 2, 32, 1),
    Sketcher.Constraint("Coincident", 32, 2, 33, 1),
    Sketcher.Constraint("Coincident", 33, 2, 34, 1),
    Sketcher.Constraint("Coincident", 34, 2, 27, 1),
    Sketcher.Constraint("Horizontal", 0),
    Sketcher.Constraint("Vertical", 6),
    Sketcher.Constraint("Vertical", 12),
    Sketcher.Constraint("Vertical", 15),
    Sketcher.Constraint("Horizontal", 17),
    Sketcher.Constraint("Vertical", 19),
    Sketcher.Constraint("Horizontal", 21),
    Sketcher.Constraint("Horizontal", 23),
    Sketcher.Constraint("Horizontal", 28),
    Sketcher.Constraint("Vertical", 30),
    Sketcher.Constraint("Horizontal", 32),
    Sketcher.Constraint("Vertical", 34),
    Sketcher.Constraint("Coincident", 1, 3, -1, 1),
    Sketcher.Constraint("Coincident", 5, 3, -1, 1),
    Sketcher.Constraint("Coincident", 22, 3, -1, 1),
    Sketcher.Constraint("Coincident", 26, 3, -1, 1),
    Sketcher.Constraint("Coincident", 27, 3, -1, 1),
    Sketcher.Constraint("Coincident", 9, 3, 3, 3),
    Sketcher.Constraint("Coincident", 11, 3, 7, 3),
    Sketcher.Constraint("Coincident", 16, 3, 7, 3),
    Sketcher.Constraint("Coincident", 25, 3, 20, 3),
    Sketcher.Constraint("Coincident", 29, 3, 20, 3),
    Sketcher.Constraint("Coincident", 31, 3, 18, 3),
    Sketcher.Constraint("Coincident", 33, 3, 7, 3),
    Sketcher.Constraint("Coincident", 35, 3, 18, 3),
    Sketcher.Constraint("Equal", 1, 3),
    Sketcher.Constraint("Equal", 3, 5),
    Sketcher.Constraint("Equal", 5, 7),
    Sketcher.Constraint("Equal", 7, 9),
    Sketcher.Constraint("Equal", 9, 11),
    Sketcher.Constraint("Equal", 11, 14),
    Sketcher.Constraint("Equal", 14, 16),
    Sketcher.Constraint("Equal", 16, 18),
    Sketcher.Constraint("Equal", 18, 20),
    Sketcher.Constraint("Equal", 20, 22),
    Sketcher.Constraint("Equal", 25, 26),
    Sketcher.Constraint("Equal", 22, 27),
    Sketcher.Constraint("Equal", 27, 29),
    Sketcher.Constraint("Equal", 29, 31),
    Sketcher.Constraint("Equal", 31, 33),
    Sketcher.Constraint("Equal", 26, 35),
    Sketcher.Constraint("Symmetric", 11, 2, 15, 2, -2),
    Sketcher.Constraint("Symmetric", 20, 2, 28, 2, -1),
    Sketcher.Constraint("PointOnObject", 14, 3, -2),
    Sketcher.Constraint("Parallel", 2, 4),
    Sketcher.Constraint("Parallel", 8, 10),
    Sketcher.Constraint("Horizontal", 16, 3, 18, 3),
    Sketcher.Constraint("Horizontal", 6, 2, 18, 2),
    Sketcher.Constraint("Horizontal", 5, 2, 19, 2),
    Sketcher.Constraint("Horizontal", 21, 2, 22, 2),
    Sketcher.Constraint("Horizontal", 24, 2, 27, 2),
    Sketcher.Constraint("Horizontal", 19, 2, 29, 2),
    Sketcher.Constraint("Horizontal", 30, 2, 33, 2),
    Sketcher.Constraint("Vertical", 6, 2, 11, 2),
    Sketcher.Constraint("Vertical", 17, 2, 20, 2),
    Sketcher.Constraint("Vertical", 28, 2, 31, 2),
    Sketcher.Constraint("Equal", 2, 4),
    Sketcher.Constraint("Equal", 8, 10),
    Sketcher.Constraint("Diameter", 25, 3.0),
    Sketcher.Constraint("Radius", 1, 3.9),
    Sketcher.Constraint("DistanceY", -1, 1, 7, 3, 58.0),
    Sketcher.Constraint("DistanceX", 18, 3, -1, 1, 86.0),
    Sketcher.Constraint("DistanceX", -1, 1, 3, 3, 52.3),
    Sketcher.Constraint("DistanceY", -1, 1, 14, 3, 191.1),
    Sketcher.Constraint("DistanceY", -1, 1, 0, 2, 1.2),
    Sketcher.Constraint("DistanceX", -1, 1, 5, 2, 1.2),
    Sketcher.Constraint("Angle", 2, Q("39.410004 deg")),
    Sketcher.Constraint("DistanceY", -1, 1, 3, 3, 42.975),
    Sketcher.Constraint("DistanceY", 8, 2, 9, 1, 2.306698),
    Sketcher.Constraint("Distance", 2, 60.269921),
    Sketcher.Constraint("DistanceX", 0, 2, 0, 1, 133.667662),
    Sketcher.Constraint("DistanceX", 23, 1, 23, 2, 138.716043),
    Sketcher.Constraint("DistanceY", 12, 1, 12, 2, 122.386254),
    Sketcher.Constraint("DistanceY", -1, 1, 7, 2, 55.822039),
    Sketcher.Constraint("DistanceX", -1, 1, 13, 2, 0.103921),
])
sketch3.setExpression("Constraints[91]", "Params.sketch3_diameter")
sketch3.setExpression("Constraints[92]", "Params.sketch3_radius")
pad3 = body2.newObject("PartDesign::Pad", "Pad002")
pad3.Profile = sketch3
pad3.setExpression("Length", "Params.pad3_length")
pad3.Reversed = True

# Sketch on XZ plane
sketch4 = body2.newObject("Sketcher::SketchObject", "Sketch003")
sketch4.AttachmentSupport = (doc.getObject("XZ_Plane001"), [""])
sketch4.MapMode = "FlatFace"
sketch4.AttachmentOffset = App.Placement(V(0, 0, -5), App.Rotation())
sketch4.addGeometry(Part.Circle(V(0, 58, 0), V(0, 0, 1), 1.5), False)
sketch4.addConstraint([
    Sketcher.Constraint("PointOnObject", 0, 3, -2),
    Sketcher.Constraint("Diameter", 0, 3.0),
    Sketcher.Constraint("DistanceY", -1, 1, 0, 3, 58.0),
])
sketch4.setExpression("Constraints[1]", "Params.sketch4_diameter")
pocket1 = body2.newObject("PartDesign::Pocket", "Pocket")
pocket1.Profile = sketch4
pocket1.Type = "ThroughAll"
pocket1.Reversed = True
doc.recompute()

boolean = body.newObject("PartDesign::Boolean", "Boolean")
boolean.Type = "Fuse"
boolean.addObjects([body2])

# Sketch on XZ plane
sketch5 = body.newObject("Sketcher::SketchObject", "Sketch004")
sketch5.AttachmentSupport = (doc.getObject("XZ_Plane"), [""])
sketch5.MapMode = "FlatFace"
sketch5.AttachmentOffset = App.Placement(V(0, 0, -5), App.Rotation())
sketch5.addGeometry([
    Part.Circle(V(-86, 0, 0), V(0, 0, 1), 3.9),  # 0
    Part.Circle(V(-86, 0, 0), V(0, 0, 1), 1.5),  # 1
    Part.Circle(V(-86, 58, 0), V(0, 0, 1), 3.9),  # 2
    Part.Circle(V(-86, 58, 0), V(0, 0, 1), 1.5),  # 3
    Part.Circle(V(0, 58, 0), V(0, 0, 1), 3.9),  # 4
    Part.Circle(V(0, 58, 0), V(0, 0, 1), 1.5),  # 5
    Part.Circle(V(0, 0, 0), V(0, 0, 1), 3.9),  # 6
    Part.Circle(V(0, 0, 0), V(0, 0, 1), 1.5),  # 7
], False)
sketch5.addConstraint([
    Sketcher.Constraint("Coincident", 6, 3, -1, 1),
    Sketcher.Constraint("Coincident", 7, 3, -1, 1),
    Sketcher.Constraint("Coincident", 1, 3, 0, 3),
    Sketcher.Constraint("Coincident", 3, 3, 2, 3),
    Sketcher.Constraint("Coincident", 5, 3, 4, 3),
    Sketcher.Constraint("Equal", 0, 2),
    Sketcher.Constraint("Equal", 1, 3),
    Sketcher.Constraint("Equal", 2, 4),
    Sketcher.Constraint("Equal", 3, 5),
    Sketcher.Constraint("Equal", 4, 6),
    Sketcher.Constraint("Equal", 5, 7),
    Sketcher.Constraint("PointOnObject", 0, 3, -1),
    Sketcher.Constraint("PointOnObject", 4, 3, -2),
    Sketcher.Constraint("Horizontal", 3, 3, 4, 3),
    Sketcher.Constraint("Vertical", 1, 3, 2, 3),
    Sketcher.Constraint("Diameter", 1, 3.0),
    Sketcher.Constraint("Diameter", 0, 7.8),
    Sketcher.Constraint("DistanceX", 0, 3, -1, 1, 86.0),
    Sketcher.Constraint("DistanceY", -1, 1, 2, 3, 58.0),
])
sketch5.setExpression("Constraints[15]", "Params.sketch5_diameter")
sketch5.setExpression("Constraints[16]", "Params.sketch5_diameter2")
pad4 = body.newObject("PartDesign::Pad", "Pad003")
pad4.Profile = sketch5
pad4.setExpression("Length", "Params.pad4_length")
pad4.Reversed = True

# Sketch on XZ plane
sketch6 = body.newObject("Sketcher::SketchObject", "Sketch005")
sketch6.AttachmentSupport = (doc.getObject("XZ_Plane"), [""])
sketch6.MapMode = "FlatFace"
sketch6.AttachmentOffset = App.Placement(V(0, 0, -1), App.Rotation())
sketch6.addGeometry([
    Part.LineSegment(V(3.7, -1.2, 0), V(142.4, -1.2, 0)),  # 0
    Part.LineSegment(V(142.4, -1.2, 0), V(148.4, -4.1, 0)),  # 1
    Part.ArcOfCircle(Part.Circle(V(152.3, -4.6, 0), V(0, 0, 1), 3.9), math.radians(172), math.radians(432)),  # 2
    Part.LineSegment(V(153.5, -0.9, 0), V(153.5, 187.4, 0)),  # 3
    Part.ArcOfCircle(Part.Circle(V(152.3, 191.1, 0), V(0, 0, 1), 3.9), math.radians(-72), math.radians(162)),  # 4
    Part.LineSegment(V(148.6, 192.3, 0), V(3.7, 192.3, 0)),  # 5
    Part.ArcOfCircle(Part.Circle(V(0, 191.1, 0), V(0, 0, 1), 3.9), math.radians(18), math.radians(252)),  # 6
    Part.LineSegment(V(-1.2, 187.4, 0), V(-1.2, 61.7, 0)),  # 7
    Part.ArcOfCircle(Part.Circle(V(0, 58, 0), V(0, 0, 1), 3.9), math.radians(108), math.radians(162)),  # 8
    Part.LineSegment(V(-3.7, 59.2, 0), V(-82.3, 59.2, 0)),  # 9
    Part.ArcOfCircle(Part.Circle(V(-86, 58, 0), V(0, 0, 1), 3.9), math.radians(18), math.radians(252)),  # 10
    Part.LineSegment(V(-87.2, 54.3, 0), V(-87.2, 3.7, 0)),  # 11
    Part.ArcOfCircle(Part.Circle(V(-86, 0, 0), V(0, 0, 1), 3.9), math.radians(108), math.radians(342)),  # 12
    Part.LineSegment(V(-82.3, -1.2, 0), V(-3.7, -1.2, 0)),  # 13
    Part.ArcOfCircle(Part.Circle(V(0, 0, 0), V(0, 0, 1), 3.9), math.radians(-162), math.radians(-18)),  # 14
], False)
sketch6.addConstraint([
    Sketcher.Constraint("Coincident", 0, 2, 1, 1),
    Sketcher.Constraint("Coincident", 1, 2, 2, 1),
    Sketcher.Constraint("Coincident", 2, 2, 3, 1),
    Sketcher.Constraint("Coincident", 3, 2, 4, 1),
    Sketcher.Constraint("Coincident", 4, 2, 5, 1),
    Sketcher.Constraint("Coincident", 5, 2, 6, 1),
    Sketcher.Constraint("Coincident", 6, 2, 7, 1),
    Sketcher.Constraint("Coincident", 7, 2, 8, 1),
    Sketcher.Constraint("Coincident", 8, 2, 9, 1),
    Sketcher.Constraint("Coincident", 9, 2, 10, 1),
    Sketcher.Constraint("Coincident", 10, 2, 11, 1),
    Sketcher.Constraint("Coincident", 11, 2, 12, 1),
    Sketcher.Constraint("Coincident", 12, 2, 13, 1),
    Sketcher.Constraint("Coincident", 13, 2, 14, 1),
    Sketcher.Constraint("Coincident", 14, 2, 0, 1),
    Sketcher.Constraint("Horizontal", 0),
    Sketcher.Constraint("Vertical", 3),
    Sketcher.Constraint("Horizontal", 5),
    Sketcher.Constraint("Vertical", 7),
    Sketcher.Constraint("Horizontal", 9),
    Sketcher.Constraint("Vertical", 11),
    Sketcher.Constraint("Horizontal", 13),
    Sketcher.Constraint("Coincident", 14, 3, -1, 1),
    Sketcher.Constraint("Equal", 2, 4),
    Sketcher.Constraint("Equal", 4, 6),
    Sketcher.Constraint("Equal", 6, 8),
    Sketcher.Constraint("Equal", 8, 10),
    Sketcher.Constraint("Equal", 10, 12),
    Sketcher.Constraint("Equal", 12, 14),
    Sketcher.Constraint("PointOnObject", 6, 3, -2),
    Sketcher.Constraint("PointOnObject", 8, 3, -2),
    Sketcher.Constraint("PointOnObject", 12, 3, -1),
    Sketcher.Constraint("Horizontal", 4, 3, 6, 3),
    Sketcher.Constraint("Horizontal", 8, 3, 10, 3),
    Sketcher.Constraint("Horizontal", 3, 2, 6, 2),
    Sketcher.Constraint("Horizontal", 0, 2, 12, 2),
    Sketcher.Constraint("Vertical", 2, 3, 4, 3),
    Sketcher.Constraint("Vertical", 10, 3, 12, 3),
    Sketcher.Constraint("Vertical", 9, 2, 12, 2),
    Sketcher.Constraint("Vertical", 5, 2, 14, 2),
    Sketcher.Constraint("Radius", 2, 3.9),
    Sketcher.Constraint("DistanceY", -1, 1, 8, 3, 58.0),
    Sketcher.Constraint("DistanceX", 10, 3, -1, 1, 86.0),
    Sketcher.Constraint("DistanceX", 10, 2, 7, 2, 86.0),
    Sketcher.Constraint("DistanceX", -1, 1, 2, 3, 152.3),
    Sketcher.Constraint("DistanceY", -1, 1, 4, 3, 191.1),
    Sketcher.Constraint("DistanceY", 0, 2, -1, 1, 1.2),
    Sketcher.Constraint("DistanceX", -1, 1, 2, 2, 153.5),
    Sketcher.Constraint("DistanceY", 2, 3, -1, 1, 4.565),
    Sketcher.Constraint("DistanceX", 0, 1, 0, 2, 138.716043),
    Sketcher.Constraint("DistanceX", -1, 1, 1, 2, 148.43342),
])
sketch6.setExpression("Constraints[40]", "Params.sketch6_radius")
pocket2 = body.newObject("PartDesign::Pocket", "Pocket001")
pocket2.Profile = sketch6
pocket2.Type = "ThroughAll"

doc.recompute()
